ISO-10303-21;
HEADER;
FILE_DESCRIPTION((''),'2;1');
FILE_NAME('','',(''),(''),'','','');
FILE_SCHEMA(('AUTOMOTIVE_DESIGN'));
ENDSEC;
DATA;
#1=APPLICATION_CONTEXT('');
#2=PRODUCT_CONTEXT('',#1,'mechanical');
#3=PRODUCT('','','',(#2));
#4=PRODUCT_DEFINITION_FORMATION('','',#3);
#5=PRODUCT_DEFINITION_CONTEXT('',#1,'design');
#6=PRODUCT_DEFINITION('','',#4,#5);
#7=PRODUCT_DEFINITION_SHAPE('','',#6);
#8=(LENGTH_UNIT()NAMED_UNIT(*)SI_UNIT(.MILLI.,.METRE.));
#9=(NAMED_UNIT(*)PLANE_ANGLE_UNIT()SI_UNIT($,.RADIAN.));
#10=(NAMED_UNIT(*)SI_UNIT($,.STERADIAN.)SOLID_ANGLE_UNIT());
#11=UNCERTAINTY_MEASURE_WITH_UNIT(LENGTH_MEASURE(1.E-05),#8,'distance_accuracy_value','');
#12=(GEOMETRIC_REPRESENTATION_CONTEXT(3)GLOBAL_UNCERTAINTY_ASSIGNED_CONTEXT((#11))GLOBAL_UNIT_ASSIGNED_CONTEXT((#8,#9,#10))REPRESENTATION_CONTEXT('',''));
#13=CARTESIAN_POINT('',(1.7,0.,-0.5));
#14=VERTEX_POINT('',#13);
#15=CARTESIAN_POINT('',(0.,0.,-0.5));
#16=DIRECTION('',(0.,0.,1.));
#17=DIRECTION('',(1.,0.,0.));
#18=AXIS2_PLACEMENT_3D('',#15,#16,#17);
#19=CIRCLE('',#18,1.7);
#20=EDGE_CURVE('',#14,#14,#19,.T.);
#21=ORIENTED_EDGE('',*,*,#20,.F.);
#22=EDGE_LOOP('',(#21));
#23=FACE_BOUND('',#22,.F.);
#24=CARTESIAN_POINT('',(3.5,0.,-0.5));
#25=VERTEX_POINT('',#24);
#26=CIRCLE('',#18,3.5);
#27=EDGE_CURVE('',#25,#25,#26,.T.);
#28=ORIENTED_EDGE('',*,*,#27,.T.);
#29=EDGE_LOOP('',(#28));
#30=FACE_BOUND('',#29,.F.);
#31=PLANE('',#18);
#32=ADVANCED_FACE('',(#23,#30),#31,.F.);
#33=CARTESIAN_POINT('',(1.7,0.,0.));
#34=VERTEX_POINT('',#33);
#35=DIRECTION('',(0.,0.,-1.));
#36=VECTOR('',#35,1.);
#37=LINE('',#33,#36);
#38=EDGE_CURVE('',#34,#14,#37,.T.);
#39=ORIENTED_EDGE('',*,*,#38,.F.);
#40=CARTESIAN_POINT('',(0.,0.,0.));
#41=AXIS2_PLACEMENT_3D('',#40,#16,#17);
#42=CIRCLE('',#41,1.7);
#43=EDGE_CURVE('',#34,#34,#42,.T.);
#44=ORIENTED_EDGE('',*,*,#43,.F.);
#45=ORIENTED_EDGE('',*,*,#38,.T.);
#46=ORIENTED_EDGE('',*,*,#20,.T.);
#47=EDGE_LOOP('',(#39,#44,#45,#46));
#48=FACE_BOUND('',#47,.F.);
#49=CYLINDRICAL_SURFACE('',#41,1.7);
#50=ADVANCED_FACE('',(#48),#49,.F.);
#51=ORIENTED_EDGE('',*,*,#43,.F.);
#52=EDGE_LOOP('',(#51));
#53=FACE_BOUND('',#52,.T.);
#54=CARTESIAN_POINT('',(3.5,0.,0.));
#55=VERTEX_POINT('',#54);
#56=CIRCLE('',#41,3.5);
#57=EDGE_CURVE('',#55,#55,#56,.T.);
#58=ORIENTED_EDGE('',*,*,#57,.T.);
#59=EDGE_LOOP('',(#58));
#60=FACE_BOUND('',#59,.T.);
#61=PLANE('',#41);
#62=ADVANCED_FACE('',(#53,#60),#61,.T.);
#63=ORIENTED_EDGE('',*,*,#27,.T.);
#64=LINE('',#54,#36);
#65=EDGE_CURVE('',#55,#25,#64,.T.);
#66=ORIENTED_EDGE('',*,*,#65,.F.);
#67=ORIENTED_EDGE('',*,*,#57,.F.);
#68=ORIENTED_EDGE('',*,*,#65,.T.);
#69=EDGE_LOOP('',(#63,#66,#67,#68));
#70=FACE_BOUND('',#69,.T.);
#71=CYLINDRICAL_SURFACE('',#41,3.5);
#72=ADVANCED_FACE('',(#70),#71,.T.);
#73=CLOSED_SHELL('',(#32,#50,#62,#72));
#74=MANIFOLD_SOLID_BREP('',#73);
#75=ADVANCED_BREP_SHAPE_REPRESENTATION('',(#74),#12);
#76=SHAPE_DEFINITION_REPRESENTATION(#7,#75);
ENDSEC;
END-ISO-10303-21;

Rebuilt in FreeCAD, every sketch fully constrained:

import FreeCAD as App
import Part
import Sketcher

V = App.Vector
Q = App.Units.Quantity

doc = App.newDocument("Part")
body = doc.addObject("PartDesign::Body", "Body")

# Sketch on XY plane
sketch1 = body.newObject("Sketcher::SketchObject", "Sketch")
sketch1.AttachmentSupport = (doc.getObject("XY_Plane"), [""])
sketch1.MapMode = "FlatFace"
sketch1.addGeometry([
    Part.Circle(V(0, 0, 0), V(0, 0, 1), 3.5),
    Part.Circle(V(0, 0, 0), V(0, 0, 1), 1.7),
], False)
sketch1.addConstraint([
    Sketcher.Constraint("Coincident", 0, 3, -1, 1),
    Sketcher.Constraint("Coincident", 1, 3, -1, 1),
    Sketcher.Constraint("Diameter", 0, Q("7 mm")),
    Sketcher.Constraint("Diameter", 1, Q("3.4 mm")),
])
pad1 = body.newObject("PartDesign::Pad", "Pad")
pad1.Profile = sketch1
pad1.Length = 0.5
pad1.Reversed = True

doc.recompute()
